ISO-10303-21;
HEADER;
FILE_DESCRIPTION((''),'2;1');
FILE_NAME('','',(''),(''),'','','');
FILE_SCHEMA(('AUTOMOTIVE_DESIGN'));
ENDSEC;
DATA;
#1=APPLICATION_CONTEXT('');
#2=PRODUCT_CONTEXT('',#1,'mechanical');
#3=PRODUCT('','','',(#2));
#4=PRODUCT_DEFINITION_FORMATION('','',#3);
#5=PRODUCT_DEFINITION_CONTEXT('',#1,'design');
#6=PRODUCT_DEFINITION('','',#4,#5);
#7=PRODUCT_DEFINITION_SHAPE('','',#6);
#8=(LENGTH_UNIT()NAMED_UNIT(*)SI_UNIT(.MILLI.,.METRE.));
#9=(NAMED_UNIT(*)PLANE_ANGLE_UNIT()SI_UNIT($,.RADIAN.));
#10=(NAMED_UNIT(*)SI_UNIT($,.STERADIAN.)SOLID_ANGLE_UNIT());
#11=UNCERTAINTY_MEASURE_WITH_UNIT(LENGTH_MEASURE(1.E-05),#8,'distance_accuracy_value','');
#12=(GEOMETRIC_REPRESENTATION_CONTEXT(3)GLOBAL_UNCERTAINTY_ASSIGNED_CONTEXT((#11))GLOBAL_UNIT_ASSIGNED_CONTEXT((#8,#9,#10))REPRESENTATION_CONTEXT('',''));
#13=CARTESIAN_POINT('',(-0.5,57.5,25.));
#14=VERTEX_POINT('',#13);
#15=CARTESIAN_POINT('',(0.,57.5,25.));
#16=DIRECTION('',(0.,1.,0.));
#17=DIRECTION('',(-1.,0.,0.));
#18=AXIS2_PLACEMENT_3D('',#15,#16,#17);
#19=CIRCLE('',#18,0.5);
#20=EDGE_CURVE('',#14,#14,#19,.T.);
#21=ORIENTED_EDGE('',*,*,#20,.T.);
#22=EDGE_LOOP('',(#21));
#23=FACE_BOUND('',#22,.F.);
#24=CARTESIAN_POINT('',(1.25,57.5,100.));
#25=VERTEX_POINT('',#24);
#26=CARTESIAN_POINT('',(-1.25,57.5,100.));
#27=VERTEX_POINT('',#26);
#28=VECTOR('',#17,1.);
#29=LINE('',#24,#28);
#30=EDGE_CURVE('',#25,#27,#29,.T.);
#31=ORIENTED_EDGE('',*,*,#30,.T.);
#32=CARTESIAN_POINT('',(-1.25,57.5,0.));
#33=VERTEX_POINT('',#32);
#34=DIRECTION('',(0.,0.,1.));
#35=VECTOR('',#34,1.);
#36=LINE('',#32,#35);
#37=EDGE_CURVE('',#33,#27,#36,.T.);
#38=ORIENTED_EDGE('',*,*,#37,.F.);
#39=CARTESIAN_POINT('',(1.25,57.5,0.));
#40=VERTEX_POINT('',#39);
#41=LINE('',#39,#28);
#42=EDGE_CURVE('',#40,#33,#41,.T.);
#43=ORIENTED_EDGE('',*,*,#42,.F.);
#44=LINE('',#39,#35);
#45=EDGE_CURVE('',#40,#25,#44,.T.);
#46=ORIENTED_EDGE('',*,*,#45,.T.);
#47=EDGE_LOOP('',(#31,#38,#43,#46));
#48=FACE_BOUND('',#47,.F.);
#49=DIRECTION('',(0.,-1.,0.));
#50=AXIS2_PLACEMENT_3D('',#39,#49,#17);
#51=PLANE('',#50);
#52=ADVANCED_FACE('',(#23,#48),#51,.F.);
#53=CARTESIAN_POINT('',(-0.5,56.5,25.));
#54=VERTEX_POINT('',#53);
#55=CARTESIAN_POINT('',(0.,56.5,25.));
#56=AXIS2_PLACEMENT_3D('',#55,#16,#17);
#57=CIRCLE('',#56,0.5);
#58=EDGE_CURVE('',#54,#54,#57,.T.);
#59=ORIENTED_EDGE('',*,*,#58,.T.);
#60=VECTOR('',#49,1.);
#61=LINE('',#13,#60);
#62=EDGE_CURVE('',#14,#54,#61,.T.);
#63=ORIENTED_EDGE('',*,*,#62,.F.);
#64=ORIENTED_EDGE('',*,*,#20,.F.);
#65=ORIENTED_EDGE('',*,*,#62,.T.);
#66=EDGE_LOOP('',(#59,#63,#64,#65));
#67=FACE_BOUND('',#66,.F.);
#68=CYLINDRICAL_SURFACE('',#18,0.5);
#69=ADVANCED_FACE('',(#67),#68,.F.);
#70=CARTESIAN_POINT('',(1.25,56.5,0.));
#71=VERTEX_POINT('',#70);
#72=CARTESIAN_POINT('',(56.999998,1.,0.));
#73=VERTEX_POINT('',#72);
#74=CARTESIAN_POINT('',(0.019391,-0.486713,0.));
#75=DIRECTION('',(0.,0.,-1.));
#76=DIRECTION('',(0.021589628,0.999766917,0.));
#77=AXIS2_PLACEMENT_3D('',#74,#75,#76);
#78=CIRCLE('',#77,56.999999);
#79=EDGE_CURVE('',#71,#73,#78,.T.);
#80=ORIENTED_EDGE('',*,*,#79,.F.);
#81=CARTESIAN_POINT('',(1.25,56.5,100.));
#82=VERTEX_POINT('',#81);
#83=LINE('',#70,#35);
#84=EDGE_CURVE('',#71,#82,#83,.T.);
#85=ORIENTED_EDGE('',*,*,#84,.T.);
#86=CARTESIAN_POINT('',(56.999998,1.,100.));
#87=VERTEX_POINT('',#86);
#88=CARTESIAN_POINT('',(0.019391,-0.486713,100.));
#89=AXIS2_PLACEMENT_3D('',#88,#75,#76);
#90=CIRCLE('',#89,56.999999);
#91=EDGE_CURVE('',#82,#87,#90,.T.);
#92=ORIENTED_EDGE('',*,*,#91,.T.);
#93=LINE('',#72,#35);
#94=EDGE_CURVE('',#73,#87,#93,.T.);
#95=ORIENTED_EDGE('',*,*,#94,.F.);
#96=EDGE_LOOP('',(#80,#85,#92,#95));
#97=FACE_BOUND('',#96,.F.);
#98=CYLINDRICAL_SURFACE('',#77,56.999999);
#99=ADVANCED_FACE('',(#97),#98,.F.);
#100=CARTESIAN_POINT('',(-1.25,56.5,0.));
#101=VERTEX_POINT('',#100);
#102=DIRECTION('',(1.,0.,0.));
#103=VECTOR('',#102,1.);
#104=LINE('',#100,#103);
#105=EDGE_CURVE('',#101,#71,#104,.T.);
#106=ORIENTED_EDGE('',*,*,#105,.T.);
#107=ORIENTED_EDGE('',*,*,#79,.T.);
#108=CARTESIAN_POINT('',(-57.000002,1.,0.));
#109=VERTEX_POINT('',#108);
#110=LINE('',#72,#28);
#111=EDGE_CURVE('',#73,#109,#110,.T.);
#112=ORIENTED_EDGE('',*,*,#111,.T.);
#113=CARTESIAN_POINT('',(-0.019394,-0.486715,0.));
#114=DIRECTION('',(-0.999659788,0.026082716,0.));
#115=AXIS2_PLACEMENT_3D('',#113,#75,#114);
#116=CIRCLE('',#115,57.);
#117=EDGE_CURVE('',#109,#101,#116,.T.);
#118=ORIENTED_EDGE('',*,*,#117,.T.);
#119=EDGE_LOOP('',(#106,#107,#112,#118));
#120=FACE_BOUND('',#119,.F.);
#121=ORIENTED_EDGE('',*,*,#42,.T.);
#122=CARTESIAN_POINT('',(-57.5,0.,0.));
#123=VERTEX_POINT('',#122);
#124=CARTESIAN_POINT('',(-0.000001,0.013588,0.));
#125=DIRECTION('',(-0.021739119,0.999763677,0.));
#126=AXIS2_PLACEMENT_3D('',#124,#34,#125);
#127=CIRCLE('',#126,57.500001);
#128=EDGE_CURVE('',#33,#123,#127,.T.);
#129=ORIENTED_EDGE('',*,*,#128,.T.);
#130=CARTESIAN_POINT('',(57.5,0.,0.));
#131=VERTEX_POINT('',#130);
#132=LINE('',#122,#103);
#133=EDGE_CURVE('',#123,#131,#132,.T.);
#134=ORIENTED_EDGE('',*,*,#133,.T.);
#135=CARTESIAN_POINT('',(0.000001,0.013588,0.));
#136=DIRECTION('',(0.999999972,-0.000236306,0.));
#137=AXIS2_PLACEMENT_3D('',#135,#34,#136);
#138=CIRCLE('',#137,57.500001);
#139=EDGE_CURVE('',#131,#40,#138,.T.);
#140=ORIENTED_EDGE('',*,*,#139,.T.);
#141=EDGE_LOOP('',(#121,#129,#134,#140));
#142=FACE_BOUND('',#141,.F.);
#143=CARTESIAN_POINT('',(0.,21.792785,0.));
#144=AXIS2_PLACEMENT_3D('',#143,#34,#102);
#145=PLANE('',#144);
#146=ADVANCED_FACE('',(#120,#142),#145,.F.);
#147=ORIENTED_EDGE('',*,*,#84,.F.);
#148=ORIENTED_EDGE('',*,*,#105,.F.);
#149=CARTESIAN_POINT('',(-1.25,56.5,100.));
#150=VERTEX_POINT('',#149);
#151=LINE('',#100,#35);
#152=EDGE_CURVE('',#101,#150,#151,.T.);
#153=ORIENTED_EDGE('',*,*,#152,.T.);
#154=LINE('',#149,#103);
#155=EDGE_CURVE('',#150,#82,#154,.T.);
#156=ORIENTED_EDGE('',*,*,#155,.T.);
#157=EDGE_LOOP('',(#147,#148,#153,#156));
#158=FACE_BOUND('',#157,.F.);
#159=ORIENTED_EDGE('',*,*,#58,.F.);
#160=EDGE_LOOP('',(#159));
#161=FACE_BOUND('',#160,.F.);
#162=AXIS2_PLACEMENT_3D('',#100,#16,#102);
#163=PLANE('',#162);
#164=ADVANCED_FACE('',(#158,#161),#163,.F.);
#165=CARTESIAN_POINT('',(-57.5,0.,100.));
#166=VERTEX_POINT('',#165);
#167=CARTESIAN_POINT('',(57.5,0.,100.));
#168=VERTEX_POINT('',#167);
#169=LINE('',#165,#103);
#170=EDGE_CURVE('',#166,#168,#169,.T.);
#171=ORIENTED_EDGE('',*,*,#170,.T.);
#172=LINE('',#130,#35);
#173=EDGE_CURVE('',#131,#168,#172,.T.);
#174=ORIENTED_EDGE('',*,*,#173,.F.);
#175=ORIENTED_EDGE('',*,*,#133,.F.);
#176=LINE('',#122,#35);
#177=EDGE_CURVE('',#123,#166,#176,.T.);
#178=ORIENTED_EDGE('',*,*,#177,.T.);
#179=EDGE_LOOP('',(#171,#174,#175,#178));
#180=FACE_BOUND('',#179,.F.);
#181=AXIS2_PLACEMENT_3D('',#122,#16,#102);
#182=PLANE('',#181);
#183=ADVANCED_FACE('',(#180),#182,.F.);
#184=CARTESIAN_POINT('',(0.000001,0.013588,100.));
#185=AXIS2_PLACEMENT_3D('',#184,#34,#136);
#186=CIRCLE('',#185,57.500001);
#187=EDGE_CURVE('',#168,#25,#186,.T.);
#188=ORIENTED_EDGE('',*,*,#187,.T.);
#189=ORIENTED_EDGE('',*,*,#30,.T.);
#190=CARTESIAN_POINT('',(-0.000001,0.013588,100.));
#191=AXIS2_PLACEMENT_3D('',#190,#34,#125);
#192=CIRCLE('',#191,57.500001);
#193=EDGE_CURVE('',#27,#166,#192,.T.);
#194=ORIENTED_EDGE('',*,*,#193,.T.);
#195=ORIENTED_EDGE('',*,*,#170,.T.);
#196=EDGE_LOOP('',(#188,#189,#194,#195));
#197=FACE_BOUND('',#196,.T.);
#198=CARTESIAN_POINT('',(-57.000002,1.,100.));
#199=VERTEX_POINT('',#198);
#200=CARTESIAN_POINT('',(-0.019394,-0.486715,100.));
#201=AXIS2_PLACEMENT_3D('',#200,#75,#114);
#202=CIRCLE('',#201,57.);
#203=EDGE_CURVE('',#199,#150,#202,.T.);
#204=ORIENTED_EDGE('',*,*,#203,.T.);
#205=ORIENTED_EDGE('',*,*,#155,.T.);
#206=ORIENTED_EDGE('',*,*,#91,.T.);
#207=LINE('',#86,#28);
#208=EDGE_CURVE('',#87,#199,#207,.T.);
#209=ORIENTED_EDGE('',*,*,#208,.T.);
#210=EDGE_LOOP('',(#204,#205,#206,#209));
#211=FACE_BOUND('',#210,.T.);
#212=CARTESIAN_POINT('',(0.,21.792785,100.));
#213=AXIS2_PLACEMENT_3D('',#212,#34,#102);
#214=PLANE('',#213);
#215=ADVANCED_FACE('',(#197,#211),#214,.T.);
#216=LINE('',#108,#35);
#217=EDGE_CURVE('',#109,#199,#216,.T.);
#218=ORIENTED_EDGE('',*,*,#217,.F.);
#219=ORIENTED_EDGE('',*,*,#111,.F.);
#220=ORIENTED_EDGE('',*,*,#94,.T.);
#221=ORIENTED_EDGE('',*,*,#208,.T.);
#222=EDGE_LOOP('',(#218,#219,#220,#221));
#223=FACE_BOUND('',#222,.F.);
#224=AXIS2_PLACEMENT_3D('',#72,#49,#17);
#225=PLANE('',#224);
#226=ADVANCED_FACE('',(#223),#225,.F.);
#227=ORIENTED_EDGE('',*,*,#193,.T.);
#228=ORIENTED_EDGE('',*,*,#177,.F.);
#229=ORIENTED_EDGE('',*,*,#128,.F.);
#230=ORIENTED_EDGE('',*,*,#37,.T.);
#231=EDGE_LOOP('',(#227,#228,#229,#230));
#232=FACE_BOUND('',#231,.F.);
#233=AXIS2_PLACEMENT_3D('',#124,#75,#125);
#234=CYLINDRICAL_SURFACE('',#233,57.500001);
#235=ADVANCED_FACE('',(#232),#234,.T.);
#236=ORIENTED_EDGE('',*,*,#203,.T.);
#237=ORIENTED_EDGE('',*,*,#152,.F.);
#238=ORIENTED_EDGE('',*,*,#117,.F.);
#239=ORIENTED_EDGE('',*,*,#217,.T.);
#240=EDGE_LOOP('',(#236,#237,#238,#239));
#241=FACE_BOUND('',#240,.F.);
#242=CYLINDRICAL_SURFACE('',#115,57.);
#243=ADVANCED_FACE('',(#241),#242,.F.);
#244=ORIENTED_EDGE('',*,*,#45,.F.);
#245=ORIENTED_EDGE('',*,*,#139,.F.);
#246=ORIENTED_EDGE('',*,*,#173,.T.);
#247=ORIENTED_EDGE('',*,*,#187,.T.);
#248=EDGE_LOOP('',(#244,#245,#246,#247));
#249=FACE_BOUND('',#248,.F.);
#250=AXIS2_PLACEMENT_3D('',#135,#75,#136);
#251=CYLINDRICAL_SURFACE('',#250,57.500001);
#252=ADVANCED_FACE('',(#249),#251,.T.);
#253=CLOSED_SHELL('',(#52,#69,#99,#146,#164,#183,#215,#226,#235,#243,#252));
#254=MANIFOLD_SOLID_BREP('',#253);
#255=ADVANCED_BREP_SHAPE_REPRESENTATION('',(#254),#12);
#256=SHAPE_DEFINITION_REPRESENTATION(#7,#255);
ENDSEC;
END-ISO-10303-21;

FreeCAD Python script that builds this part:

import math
import FreeCAD as App
import Part
import Sketcher

V = App.Vector

doc = App.newDocument("Part")
body = doc.addObject("PartDesign::Body", "Body")

# Sketch on XY plane
sketch1 = doc.addObject("Sketcher::SketchObject", "Sketch")
body.addObject(sketch1)
sketch1.AttachmentSupport = (doc.XY_Plane, [""])
sketch1.MapMode = "FlatFace"
sketch1.addGeometry(Part.ArcOfCircle(Part.Circle(V(-0.000001, 0.013588, 0), V(0, 0, 1), 57.500001), math.radians(91.245658), math.radians(180.013539)), False)
sketch1.addGeometry(Part.LineSegment(V(-57.5, 0, 0), V(57.5, 0, 0)), False)
sketch1.addGeometry(Part.ArcOfCircle(Part.Circle(V(0.000001, 0.013588, 0), V(0, 0, 1), 57.500001), math.radians(-0.013539), math.radians(88.754342)), False)
sketch1.addGeometry(Part.LineSegment(V(1.25, 57.5, 0), V(-1.25, 57.5, 0)), False)
sketch1.addGeometry(Part.LineSegment(V(56.999998, 1, 0), V(-57.000002, 1, 0)), False)
sketch1.addGeometry(Part.ArcOfCircle(Part.Circle(V(-0.019394, -0.486715, 0), V(0, 0, 1), 57), math.radians(91.237088), math.radians(178.505401)), False)
sketch1.addGeometry(Part.LineSegment(V(-1.25, 56.5, 0), V(1.25, 56.5, 0)), False)
sketch1.addGeometry(Part.ArcOfCircle(Part.Circle(V(0.019391, -0.486713, 0), V(0, 0, 1), 56.999999), math.radians(1.494597), math.radians(88.762909)), False)
sketch1.addConstraint(Sketcher.Constraint("Coincident", 0, 2, 1, 1))
sketch1.addConstraint(Sketcher.Constraint("Coincident", 1, 2, 2, 1))
sketch1.addConstraint(Sketcher.Constraint("Coincident", 2, 2, 3, 1))
sketch1.addConstraint(Sketcher.Constraint("Coincident", 3, 2, 0, 1))
sketch1.addConstraint(Sketcher.Constraint("Coincident", 4, 2, 5, 2))
sketch1.addConstraint(Sketcher.Constraint("Coincident", 5, 1, 6, 1))
sketch1.addConstraint(Sketcher.Constraint("Coincident", 6, 2, 7, 2))
sketch1.addConstraint(Sketcher.Constraint("Coincident", 7, 1, 4, 1))
sketch1.addConstraint(Sketcher.Constraint("Horizontal", 1))
sketch1.addConstraint(Sketcher.Constraint("Horizontal", 3))
sketch1.addConstraint(Sketcher.Constraint("Horizontal", 4))
sketch1.addConstraint(Sketcher.Constraint("Horizontal", 6))
sketch1.addConstraint(Sketcher.Constraint("Coincident", 2, 3, 0, 3))
sketch1.addConstraint(Sketcher.Constraint("Equal", 0, 2))
sketch1.addConstraint(Sketcher.Constraint("Equal", 5, 7))
sketch1.addConstraint(Sketcher.Constraint("Symmetric", 0, 2, 1, 2, -1, 1))
sketch1.addConstraint(Sketcher.Constraint("Symmetric", 5, 3, 7, 3, -2))
sketch1.addConstraint(Sketcher.Constraint("Vertical", 3, 2, 5, 1))
sketch1.addConstraint(Sketcher.Constraint("Radius", 5, 57.0))
sketch1.addConstraint(Sketcher.Constraint("Radius", 0, 57.500001))
sketch1.addConstraint(Sketcher.Constraint("DistanceX", 4, 2, 4, 1, 114.0))
sketch1.addConstraint(Sketcher.Constraint("DistanceX", 3, 2, 3, 1, 2.5))
sketch1.addConstraint(Sketcher.Constraint("DistanceY", -1, 1, 4, 2, 1.0))
sketch1.addConstraint(Sketcher.Constraint("DistanceY", 5, 1, 3, 2, 1.0))
sketch1.addConstraint(Sketcher.Constraint("DistanceY", -1, 1, 2, 2, 57.5))
pad1 = doc.addObject("PartDesign::Pad", "Pad")
body.addObject(pad1)
pad1.Profile = sketch1
pad1.Length = 100

# Sketch on XZ plane
sketch2 = doc.addObject("Sketcher::SketchObject", "Sketch001")
body.addObject(sketch2)
sketch2.AttachmentSupport = (doc.XZ_Plane, [""])
sketch2.MapMode = "FlatFace"
sketch2.AttachmentOffset = App.Placement(V(0, 0, -57.5), App.Rotation())
sketch2.addGeometry(Part.Circle(V(0, 25, 0), V(0, 0, 1), 0.5), False)
sketch2.addConstraint(Sketcher.Constraint("PointOnObject", 0, 3, -2))
sketch2.addConstraint(Sketcher.Constraint("Diameter", 0, 1.0))
sketch2.addConstraint(Sketcher.Constraint("DistanceY", -1, 1, 0, 3, 25.0))
pocket1 = doc.addObject("PartDesign::Pocket", "Pocket")
body.addObject(pocket1)
pocket1.Profile = sketch2
pocket1.Length = 25
pocket1.Reversed = True

doc.recompute()
